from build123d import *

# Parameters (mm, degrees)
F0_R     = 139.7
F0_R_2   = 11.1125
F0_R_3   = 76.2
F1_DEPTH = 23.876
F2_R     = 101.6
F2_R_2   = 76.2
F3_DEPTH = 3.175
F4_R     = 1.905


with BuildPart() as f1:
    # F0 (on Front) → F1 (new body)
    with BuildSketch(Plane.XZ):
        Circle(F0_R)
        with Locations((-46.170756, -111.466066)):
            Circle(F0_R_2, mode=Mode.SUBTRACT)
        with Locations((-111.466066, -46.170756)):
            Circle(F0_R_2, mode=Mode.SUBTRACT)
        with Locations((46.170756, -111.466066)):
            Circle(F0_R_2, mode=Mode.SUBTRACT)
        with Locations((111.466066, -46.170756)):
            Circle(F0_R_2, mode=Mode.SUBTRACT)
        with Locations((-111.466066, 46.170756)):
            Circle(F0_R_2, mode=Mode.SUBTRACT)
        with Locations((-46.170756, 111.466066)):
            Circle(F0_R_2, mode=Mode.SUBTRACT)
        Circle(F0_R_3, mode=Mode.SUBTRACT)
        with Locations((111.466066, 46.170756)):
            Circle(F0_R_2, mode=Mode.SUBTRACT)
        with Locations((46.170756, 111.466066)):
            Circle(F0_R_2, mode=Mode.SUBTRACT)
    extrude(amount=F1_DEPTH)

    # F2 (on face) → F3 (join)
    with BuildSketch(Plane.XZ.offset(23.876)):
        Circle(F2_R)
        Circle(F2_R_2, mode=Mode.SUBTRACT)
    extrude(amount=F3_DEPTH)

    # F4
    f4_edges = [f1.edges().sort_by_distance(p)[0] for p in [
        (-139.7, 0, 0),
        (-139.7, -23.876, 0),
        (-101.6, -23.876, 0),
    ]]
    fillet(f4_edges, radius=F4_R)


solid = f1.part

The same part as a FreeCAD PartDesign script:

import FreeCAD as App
import Part
import Sketcher

V = App.Vector
Q = App.Units.Quantity


def edges_at(feature, points):
    """Names of the edges that pass closest to the given points."""
    edges = feature.Shape.Edges
    near = lambda p: min(range(len(edges)), key=lambda i: edges[i].distToShape(Part.Vertex(*p))[0])
    return sorted({f"Edge{near(p) + 1}" for p in points})

doc = App.newDocument("Part")
body = doc.addObject("PartDesign::Body", "Body")

sketch1 = body.newObject("Sketcher::SketchObject", "Sketch")
sketch1.AttachmentSupport = (doc.getObject("XZ_Plane"), [""])
sketch1.MapMode = "FlatFace"
sketch1.addGeometry([
    Part.Circle(V(0, 0, 0), V(0, 0, 1), 140),
    Part.Circle(V(-46, -111, 0), V(0, 0, 1), 11),
    Part.Circle(V(-111, -46, 0), V(0, 0, 1), 11),
    Part.Circle(V(46, -111, 0), V(0, 0, 1), 11),
    Part.Circle(V(111, -46, 0), V(0, 0, 1), 11),
    Part.Circle(V(-111, 46, 0), V(0, 0, 1), 11),
    Part.Circle(V(-46, 111, 0), V(0, 0, 1), 11),
    Part.Circle(V(0, 0, 0), V(0, 0, 1), 76),
    Part.Circle(V(111, 46, 0), V(0, 0, 1), 11),
    Part.Circle(V(46, 111, 0), V(0, 0, 1), 11),
], False)
sketch1.addConstraint([
    Sketcher.Constraint("Coincident", 0, 3, -1, 1),
    Sketcher.Constraint("Coincident", 7, 3, -1, 1),
    Sketcher.Constraint("Equal", 1, 2),
    Sketcher.Constraint("Equal", 2, 3),
    Sketcher.Constraint("Equal", 3, 4),
    Sketcher.Constraint("Equal", 4, 5),
    Sketcher.Constraint("Equal", 5, 6),
    Sketcher.Constraint("Equal", 6, 8),
    Sketcher.Constraint("Equal", 8, 9),
    Sketcher.Constraint("Symmetric", 4, 3, 5, 3, -1, 1),
    Sketcher.Constraint("Symmetric", 3, 3, 6, 3, -1, 1),
    Sketcher.Constraint("Symmetric", 2, 3, 8, 3, -1, 1),
    Sketcher.Constraint("Symmetric", 1, 3, 9, 3, -1, 1),
    Sketcher.Constraint("Symmetric", 1, 3, 3, 3, -2),
    Sketcher.Constraint("Symmetric", 2, 3, 4, 3, -2),
    Sketcher.Constraint("Diameter", 0, Q("11 in")),
    Sketcher.Constraint("Diameter", 7, Q("6 in")),
    Sketcher.Constraint("Diameter", 1, Q("0.875 in")),
    Sketcher.Constraint("DistanceX", 2, 3, 1, 3, 65.29531),
    Sketcher.Constraint("DistanceY", 1, 3, 2, 3, 65.29531),
    Sketcher.Constraint("DistanceX", 1, 3, 3, 3, 92.341512),
    Sketcher.Constraint("DistanceY", 2, 3, 5, 3, 92.341512),
])
pad1 = body.newObject("PartDesign::Pad", "Pad")
pad1.Profile = sketch1
pad1.Length = Q("0.94 in")

sketch2 = body.newObject("Sketcher::SketchObject", "Sketch001")
sketch2.AttachmentSupport = (doc.getObject("XZ_Plane"), [""])
sketch2.MapMode = "FlatFace"
sketch2.AttachmentOffset = App.Placement(V(0, 0, 0.94 * 25.4), App.Rotation())
sketch2.addGeometry([
    Part.Circle(V(0, 0, 0), V(0, 0, 1), 102),
    Part.Circle(V(0, 0, 0), V(0, 0, 1), 76),
], False)
sketch2.addConstraint([
    Sketcher.Constraint("Coincident", 0, 3, -1, 1),
    Sketcher.Constraint("Coincident", 1, 3, -1, 1),
    Sketcher.Constraint("Diameter", 0, Q("8 in")),
    Sketcher.Constraint("Diameter", 1, Q("6 in")),
])
pad2 = body.newObject("PartDesign::Pad", "Pad001")
pad2.Profile = sketch2
pad2.Length = Q("0.125 in")
doc.recompute()

fillet = body.newObject("PartDesign::Fillet", "Fillet")
fillet.Base = (pad2, edges_at(pad2, [(-139.7, 0, 0), (-139.7, -23.876, 0), (-101.6, -23.876, 0)]))
fillet.Radius = Q("0.075 in")

doc.recompute()
